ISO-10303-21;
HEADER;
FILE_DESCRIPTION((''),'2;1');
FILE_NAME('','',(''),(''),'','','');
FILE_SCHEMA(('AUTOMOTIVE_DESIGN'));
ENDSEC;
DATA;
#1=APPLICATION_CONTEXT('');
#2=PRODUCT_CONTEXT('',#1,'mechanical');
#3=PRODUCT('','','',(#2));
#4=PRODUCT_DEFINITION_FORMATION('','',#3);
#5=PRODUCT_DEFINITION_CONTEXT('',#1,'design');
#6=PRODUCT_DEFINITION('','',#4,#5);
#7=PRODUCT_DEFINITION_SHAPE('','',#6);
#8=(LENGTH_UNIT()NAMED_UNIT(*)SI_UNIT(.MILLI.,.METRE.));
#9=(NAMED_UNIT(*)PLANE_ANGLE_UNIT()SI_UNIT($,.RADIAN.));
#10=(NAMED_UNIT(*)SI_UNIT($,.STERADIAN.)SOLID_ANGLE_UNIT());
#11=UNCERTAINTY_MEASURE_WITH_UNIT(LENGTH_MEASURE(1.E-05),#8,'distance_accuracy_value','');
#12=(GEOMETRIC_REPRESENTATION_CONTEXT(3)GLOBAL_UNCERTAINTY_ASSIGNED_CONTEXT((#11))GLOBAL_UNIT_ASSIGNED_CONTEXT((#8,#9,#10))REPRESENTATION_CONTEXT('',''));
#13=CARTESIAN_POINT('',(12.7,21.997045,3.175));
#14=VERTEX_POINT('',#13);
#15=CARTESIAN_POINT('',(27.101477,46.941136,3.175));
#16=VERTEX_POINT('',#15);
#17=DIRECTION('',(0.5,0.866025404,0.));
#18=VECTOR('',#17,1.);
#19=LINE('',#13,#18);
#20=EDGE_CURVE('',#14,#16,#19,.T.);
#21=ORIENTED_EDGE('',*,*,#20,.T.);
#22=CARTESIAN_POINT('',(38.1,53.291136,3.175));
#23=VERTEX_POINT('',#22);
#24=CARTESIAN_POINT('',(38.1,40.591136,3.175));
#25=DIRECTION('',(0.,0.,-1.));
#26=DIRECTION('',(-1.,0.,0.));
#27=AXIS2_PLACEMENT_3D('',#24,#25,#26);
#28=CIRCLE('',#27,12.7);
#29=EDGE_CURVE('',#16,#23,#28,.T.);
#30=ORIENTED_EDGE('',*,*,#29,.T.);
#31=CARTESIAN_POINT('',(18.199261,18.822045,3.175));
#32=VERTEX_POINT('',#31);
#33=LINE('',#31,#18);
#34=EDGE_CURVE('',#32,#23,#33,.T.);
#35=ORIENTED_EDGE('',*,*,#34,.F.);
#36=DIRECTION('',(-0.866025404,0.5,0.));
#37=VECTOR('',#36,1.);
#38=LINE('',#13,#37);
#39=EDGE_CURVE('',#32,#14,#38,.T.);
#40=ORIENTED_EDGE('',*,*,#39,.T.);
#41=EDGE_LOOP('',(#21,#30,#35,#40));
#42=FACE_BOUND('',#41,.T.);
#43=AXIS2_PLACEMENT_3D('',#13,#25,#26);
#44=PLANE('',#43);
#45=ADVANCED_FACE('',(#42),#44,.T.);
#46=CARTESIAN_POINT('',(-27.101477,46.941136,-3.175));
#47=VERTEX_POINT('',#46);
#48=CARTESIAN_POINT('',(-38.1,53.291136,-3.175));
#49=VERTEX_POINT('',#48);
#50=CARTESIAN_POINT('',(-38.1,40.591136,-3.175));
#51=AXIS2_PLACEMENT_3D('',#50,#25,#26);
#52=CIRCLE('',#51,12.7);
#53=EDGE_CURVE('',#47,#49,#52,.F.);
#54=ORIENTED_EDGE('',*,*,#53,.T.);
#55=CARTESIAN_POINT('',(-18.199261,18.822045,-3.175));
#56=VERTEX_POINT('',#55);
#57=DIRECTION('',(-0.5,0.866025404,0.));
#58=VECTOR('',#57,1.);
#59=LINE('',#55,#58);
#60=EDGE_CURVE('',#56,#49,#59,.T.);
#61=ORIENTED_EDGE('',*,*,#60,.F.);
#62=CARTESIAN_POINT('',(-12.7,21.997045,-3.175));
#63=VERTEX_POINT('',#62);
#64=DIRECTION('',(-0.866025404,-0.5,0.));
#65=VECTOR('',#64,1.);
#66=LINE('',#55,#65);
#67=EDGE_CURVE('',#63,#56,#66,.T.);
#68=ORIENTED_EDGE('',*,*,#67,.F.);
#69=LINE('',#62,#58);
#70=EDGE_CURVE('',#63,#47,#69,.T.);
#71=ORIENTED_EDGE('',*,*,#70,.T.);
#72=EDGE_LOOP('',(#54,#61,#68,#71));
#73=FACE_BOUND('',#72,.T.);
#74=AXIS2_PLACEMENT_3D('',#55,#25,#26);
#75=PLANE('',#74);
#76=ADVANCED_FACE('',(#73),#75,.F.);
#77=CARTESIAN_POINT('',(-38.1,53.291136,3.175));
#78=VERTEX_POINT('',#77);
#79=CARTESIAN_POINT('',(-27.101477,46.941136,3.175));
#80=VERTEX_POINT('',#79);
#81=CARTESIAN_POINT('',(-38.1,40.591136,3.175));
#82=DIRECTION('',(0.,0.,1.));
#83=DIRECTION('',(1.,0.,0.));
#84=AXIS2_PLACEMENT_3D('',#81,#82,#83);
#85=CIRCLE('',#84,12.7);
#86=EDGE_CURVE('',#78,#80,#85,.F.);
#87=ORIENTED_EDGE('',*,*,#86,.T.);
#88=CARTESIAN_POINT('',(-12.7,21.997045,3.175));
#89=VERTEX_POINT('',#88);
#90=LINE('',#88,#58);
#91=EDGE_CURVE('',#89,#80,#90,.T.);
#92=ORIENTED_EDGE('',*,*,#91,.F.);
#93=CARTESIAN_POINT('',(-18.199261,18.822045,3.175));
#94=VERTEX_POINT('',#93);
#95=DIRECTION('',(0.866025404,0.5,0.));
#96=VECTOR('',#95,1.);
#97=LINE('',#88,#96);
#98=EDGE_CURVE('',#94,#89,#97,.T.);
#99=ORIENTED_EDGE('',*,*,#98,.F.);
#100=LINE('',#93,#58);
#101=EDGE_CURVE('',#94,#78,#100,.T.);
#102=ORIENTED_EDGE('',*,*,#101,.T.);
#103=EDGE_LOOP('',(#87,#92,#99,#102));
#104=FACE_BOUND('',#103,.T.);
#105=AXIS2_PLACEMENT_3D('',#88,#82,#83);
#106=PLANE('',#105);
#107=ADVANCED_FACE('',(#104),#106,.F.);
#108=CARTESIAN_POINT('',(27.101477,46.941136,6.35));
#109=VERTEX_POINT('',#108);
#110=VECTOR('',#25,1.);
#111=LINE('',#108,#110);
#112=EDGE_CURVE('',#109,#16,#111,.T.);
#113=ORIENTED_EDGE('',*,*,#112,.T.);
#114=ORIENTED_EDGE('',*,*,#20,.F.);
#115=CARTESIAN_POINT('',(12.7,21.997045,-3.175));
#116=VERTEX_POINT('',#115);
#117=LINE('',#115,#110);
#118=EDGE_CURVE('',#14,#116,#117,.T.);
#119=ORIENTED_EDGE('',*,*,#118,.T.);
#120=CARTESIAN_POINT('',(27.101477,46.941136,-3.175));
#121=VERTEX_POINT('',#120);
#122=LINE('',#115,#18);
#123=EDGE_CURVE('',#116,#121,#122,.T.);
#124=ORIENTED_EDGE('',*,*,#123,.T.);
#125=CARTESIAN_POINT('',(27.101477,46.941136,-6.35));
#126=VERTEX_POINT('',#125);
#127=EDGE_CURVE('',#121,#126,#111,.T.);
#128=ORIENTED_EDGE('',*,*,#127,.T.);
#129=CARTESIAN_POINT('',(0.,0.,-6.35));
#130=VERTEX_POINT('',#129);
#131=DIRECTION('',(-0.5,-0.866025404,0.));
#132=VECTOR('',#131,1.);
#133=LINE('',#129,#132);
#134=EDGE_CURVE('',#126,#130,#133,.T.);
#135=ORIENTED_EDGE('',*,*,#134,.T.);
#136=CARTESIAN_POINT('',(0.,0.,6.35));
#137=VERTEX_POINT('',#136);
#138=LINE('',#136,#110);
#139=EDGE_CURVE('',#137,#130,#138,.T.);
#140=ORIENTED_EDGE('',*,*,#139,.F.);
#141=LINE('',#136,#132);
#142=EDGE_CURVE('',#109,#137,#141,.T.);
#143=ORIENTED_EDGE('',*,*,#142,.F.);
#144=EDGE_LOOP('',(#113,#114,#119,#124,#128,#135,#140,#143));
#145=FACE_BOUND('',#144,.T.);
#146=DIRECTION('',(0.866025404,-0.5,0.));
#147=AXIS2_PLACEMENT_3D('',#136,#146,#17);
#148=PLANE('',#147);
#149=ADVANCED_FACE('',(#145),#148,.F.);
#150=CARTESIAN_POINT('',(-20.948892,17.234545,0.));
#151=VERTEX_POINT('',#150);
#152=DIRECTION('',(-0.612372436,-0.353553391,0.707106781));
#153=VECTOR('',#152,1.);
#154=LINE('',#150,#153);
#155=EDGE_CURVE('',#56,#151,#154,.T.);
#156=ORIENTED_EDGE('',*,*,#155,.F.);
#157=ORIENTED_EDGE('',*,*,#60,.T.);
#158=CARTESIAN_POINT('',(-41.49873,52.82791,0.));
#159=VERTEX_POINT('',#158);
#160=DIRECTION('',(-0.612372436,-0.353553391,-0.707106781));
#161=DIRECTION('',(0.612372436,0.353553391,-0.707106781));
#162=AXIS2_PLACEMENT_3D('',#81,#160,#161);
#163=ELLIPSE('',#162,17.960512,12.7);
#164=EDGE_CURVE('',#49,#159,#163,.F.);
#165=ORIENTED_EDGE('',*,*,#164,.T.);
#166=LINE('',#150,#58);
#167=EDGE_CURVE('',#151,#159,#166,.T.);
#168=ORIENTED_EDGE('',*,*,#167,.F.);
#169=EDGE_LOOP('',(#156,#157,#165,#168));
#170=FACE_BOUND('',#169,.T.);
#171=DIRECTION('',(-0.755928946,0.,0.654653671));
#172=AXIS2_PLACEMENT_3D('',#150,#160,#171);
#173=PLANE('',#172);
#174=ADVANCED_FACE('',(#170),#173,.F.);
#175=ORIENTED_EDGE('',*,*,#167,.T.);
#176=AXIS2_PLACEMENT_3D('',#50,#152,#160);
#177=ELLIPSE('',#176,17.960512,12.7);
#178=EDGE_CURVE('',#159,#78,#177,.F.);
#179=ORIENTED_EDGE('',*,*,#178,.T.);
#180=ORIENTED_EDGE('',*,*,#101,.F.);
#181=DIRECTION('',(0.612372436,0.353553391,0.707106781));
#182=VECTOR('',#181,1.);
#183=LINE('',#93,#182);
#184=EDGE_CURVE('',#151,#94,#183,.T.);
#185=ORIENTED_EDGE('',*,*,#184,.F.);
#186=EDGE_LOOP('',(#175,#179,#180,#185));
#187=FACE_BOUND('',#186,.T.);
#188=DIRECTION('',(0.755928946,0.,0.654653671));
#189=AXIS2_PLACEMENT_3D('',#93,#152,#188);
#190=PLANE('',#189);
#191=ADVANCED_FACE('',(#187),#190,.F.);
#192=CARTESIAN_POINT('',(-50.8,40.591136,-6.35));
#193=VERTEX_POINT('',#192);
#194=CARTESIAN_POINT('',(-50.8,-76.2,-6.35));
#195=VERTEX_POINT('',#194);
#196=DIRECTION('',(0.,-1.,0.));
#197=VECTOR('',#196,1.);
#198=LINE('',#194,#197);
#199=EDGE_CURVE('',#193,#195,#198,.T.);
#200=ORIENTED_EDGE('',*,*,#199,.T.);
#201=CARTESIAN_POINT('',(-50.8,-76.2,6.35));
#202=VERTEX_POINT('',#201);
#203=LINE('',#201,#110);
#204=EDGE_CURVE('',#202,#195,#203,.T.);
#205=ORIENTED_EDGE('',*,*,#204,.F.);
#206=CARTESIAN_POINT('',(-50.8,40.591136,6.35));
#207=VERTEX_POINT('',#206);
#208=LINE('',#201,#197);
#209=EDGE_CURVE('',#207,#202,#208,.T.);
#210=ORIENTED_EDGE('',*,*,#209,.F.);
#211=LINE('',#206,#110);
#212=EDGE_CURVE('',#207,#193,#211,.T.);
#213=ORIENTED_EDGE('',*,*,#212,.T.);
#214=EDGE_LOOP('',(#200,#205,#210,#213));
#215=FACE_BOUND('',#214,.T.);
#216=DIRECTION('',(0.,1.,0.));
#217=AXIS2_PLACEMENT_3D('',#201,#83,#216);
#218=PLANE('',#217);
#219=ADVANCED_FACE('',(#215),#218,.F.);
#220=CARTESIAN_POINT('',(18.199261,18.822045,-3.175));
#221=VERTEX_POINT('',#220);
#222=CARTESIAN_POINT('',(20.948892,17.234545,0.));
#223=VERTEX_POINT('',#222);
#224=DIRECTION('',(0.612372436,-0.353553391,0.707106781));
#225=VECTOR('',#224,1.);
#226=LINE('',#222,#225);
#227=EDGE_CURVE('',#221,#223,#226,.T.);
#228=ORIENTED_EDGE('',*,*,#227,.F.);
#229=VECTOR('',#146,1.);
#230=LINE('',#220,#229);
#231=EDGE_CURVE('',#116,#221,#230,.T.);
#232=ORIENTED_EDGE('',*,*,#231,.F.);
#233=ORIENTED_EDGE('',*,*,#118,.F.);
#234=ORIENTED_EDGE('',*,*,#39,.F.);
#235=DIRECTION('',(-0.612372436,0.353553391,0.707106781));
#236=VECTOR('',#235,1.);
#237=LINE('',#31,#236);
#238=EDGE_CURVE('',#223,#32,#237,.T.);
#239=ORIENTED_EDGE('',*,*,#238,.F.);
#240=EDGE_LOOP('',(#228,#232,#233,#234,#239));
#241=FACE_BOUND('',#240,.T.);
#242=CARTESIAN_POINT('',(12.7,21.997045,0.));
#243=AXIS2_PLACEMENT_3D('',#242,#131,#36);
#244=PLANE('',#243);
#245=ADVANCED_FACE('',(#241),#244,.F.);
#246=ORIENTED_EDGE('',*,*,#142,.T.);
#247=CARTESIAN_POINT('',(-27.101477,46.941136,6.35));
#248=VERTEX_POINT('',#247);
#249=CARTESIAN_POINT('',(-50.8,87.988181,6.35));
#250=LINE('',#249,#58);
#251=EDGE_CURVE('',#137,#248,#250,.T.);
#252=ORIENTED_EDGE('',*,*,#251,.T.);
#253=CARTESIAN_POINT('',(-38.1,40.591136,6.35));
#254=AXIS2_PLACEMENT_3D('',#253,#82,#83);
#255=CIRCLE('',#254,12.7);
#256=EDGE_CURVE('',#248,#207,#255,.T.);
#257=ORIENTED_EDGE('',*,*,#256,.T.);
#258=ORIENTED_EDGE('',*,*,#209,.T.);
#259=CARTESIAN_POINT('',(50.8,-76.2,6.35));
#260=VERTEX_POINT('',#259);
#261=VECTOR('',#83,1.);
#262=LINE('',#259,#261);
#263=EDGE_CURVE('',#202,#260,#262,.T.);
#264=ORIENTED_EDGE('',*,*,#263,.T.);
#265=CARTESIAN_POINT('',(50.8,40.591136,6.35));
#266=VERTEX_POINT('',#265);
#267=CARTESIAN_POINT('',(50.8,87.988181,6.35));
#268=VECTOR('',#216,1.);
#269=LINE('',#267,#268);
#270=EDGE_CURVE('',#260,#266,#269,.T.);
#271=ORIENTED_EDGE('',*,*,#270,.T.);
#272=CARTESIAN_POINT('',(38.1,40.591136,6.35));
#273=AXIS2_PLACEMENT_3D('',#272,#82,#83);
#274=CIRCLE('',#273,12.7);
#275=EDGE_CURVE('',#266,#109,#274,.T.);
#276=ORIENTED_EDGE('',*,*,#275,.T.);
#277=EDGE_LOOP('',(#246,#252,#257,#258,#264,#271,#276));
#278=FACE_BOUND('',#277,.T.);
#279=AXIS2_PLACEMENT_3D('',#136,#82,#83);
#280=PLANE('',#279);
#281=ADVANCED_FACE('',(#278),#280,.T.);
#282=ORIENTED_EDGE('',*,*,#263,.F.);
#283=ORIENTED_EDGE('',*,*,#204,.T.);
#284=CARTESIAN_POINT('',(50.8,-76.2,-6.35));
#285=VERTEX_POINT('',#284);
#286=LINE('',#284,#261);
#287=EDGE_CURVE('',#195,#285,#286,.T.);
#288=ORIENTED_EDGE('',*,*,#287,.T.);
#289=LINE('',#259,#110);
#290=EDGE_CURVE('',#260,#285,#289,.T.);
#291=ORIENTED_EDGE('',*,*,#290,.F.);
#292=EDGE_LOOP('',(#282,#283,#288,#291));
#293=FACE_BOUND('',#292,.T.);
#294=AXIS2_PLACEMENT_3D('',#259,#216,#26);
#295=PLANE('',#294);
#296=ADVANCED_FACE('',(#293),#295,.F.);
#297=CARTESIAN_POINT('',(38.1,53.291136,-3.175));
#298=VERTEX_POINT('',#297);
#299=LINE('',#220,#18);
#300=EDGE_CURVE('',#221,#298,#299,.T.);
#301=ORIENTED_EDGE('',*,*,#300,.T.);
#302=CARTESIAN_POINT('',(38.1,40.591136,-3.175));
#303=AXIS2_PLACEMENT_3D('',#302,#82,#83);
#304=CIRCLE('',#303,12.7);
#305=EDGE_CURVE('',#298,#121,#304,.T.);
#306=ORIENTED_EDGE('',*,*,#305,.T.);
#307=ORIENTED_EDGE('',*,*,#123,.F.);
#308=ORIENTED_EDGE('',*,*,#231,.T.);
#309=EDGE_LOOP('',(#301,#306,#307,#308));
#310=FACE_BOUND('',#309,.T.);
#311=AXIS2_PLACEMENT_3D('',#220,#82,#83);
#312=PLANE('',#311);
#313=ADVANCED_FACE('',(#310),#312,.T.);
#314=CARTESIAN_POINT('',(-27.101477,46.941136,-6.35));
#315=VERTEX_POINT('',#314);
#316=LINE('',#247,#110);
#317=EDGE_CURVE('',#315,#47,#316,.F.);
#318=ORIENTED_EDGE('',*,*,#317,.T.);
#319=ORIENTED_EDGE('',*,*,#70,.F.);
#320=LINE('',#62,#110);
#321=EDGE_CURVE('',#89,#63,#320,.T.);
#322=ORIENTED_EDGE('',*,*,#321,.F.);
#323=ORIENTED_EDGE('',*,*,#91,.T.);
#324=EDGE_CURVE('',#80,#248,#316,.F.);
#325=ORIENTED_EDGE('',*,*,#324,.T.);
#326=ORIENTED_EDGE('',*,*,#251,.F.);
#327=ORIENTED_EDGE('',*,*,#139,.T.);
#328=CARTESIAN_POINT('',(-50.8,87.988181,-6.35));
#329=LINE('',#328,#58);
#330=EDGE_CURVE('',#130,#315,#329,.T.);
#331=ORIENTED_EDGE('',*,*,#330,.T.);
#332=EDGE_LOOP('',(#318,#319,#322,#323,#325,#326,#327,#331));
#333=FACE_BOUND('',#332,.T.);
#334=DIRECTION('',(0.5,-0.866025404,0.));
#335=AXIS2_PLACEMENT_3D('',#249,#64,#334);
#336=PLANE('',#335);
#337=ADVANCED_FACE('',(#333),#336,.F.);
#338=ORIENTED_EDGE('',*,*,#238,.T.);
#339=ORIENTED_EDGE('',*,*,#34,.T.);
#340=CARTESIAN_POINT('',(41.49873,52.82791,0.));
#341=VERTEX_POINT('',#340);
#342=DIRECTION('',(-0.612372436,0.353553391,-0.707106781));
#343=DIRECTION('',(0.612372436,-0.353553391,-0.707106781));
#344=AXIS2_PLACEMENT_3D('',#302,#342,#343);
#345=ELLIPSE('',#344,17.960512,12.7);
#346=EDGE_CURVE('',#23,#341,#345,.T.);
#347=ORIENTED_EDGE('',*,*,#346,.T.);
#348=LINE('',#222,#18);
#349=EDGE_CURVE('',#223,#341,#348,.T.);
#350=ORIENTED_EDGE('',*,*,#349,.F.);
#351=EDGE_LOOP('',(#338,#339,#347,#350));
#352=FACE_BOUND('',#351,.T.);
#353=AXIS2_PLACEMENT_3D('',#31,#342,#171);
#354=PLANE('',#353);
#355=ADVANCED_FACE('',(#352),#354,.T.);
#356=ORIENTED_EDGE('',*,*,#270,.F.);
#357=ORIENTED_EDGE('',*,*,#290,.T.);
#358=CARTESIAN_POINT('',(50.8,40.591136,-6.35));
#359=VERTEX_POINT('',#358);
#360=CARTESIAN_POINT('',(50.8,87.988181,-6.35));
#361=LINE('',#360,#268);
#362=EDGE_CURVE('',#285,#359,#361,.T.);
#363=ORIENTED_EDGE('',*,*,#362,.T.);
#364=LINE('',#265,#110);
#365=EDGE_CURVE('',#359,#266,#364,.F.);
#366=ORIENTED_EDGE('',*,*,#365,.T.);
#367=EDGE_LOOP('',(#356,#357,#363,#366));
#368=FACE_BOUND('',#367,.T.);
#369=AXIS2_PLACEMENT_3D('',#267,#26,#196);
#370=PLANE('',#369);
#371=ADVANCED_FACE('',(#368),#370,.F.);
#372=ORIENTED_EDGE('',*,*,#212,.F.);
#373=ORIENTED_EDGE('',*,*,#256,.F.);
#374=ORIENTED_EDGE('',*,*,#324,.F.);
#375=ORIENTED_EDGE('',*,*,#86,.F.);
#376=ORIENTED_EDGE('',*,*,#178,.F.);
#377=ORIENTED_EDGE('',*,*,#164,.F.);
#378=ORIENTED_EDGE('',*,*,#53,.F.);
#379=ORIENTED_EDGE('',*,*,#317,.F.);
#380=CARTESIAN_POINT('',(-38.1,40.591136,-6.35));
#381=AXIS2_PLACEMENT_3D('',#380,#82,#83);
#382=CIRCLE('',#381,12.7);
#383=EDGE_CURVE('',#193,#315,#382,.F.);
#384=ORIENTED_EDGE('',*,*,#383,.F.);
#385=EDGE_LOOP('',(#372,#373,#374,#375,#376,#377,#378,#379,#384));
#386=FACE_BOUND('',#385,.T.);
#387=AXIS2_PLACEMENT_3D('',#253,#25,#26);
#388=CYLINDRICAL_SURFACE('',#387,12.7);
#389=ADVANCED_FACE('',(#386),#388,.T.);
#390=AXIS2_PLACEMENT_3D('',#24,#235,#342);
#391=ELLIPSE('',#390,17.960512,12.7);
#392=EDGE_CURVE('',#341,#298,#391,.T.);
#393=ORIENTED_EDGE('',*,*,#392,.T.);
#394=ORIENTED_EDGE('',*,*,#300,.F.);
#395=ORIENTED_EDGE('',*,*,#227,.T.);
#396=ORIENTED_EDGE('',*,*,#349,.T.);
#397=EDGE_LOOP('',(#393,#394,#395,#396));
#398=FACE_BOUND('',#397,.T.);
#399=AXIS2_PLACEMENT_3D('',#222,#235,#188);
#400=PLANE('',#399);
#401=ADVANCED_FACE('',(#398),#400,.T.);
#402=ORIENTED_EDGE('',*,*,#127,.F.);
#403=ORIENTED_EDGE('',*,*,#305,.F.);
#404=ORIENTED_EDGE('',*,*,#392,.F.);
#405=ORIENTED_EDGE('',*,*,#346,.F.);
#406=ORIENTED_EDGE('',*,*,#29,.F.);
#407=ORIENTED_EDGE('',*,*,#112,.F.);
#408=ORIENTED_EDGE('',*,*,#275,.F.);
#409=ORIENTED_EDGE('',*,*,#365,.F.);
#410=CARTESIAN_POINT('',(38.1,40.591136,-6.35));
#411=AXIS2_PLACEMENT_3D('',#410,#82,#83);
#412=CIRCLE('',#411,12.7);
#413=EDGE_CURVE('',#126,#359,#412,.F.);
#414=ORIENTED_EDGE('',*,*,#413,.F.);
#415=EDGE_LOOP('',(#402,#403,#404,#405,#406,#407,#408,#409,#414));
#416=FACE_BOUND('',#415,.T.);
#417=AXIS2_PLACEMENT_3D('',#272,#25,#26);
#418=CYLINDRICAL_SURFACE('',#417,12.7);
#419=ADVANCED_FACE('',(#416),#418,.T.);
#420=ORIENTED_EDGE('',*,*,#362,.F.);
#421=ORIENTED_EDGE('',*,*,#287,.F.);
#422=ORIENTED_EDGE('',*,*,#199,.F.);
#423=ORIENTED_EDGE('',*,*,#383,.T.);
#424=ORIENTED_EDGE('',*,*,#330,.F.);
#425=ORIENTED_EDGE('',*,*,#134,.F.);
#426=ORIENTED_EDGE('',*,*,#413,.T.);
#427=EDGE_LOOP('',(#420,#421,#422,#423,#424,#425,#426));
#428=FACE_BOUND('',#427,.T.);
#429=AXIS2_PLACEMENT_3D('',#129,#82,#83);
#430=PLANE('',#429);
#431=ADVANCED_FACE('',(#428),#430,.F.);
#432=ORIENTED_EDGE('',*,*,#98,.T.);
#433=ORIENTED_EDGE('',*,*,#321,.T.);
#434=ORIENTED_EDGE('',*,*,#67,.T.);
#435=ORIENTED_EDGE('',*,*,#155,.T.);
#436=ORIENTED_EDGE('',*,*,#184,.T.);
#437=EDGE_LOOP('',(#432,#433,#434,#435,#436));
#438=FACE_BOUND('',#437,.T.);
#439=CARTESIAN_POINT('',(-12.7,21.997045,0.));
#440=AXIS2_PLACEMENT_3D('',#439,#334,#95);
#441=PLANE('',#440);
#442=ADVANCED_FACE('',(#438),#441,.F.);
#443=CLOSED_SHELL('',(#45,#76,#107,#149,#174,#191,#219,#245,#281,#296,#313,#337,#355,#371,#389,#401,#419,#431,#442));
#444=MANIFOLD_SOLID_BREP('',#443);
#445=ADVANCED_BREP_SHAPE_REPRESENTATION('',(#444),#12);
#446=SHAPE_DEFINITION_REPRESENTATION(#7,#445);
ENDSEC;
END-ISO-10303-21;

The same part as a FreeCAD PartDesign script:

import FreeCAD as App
import Part
import Sketcher

V = App.Vector
Q = App.Units.Quantity


def edges_at(feature, points):
    """Names of the edges that pass closest to the given points."""
    edges = feature.Shape.Edges
    near = lambda p: min(range(len(edges)), key=lambda i: edges[i].distToShape(Part.Vertex(*p))[0])
    return sorted({f"Edge{near(p) + 1}" for p in points})


def add_polygon(sketch, points):
    """Adds a closed chain of lines whose ends are joined by coincident constraints."""
    first, n = sketch.GeometryCount, len(points)
    for a, b in zip(points, points[1:] + points[:1]):
        sketch.addGeometry(Part.LineSegment(App.Vector(*a, 0), App.Vector(*b, 0)), False)
    for i in range(n):
        sketch.addConstraint(Sketcher.Constraint("Coincident", first + i, 2, first + (i + 1) % n, 1))

doc = App.newDocument("Part")
params = doc.addObject("Spreadsheet::Sheet", "Params")
for row, (alias, value) in enumerate([
    ("sketch1_width", "4 in"),
    ("sketch1_length", "4 in"),
    ("pad1_length", "0.5 in"),
    ("sketch2_width", "0.25 in"),
    ("pocket1_length", "3 in"),
    ("fillet_radius", "0.5 in"),
], start=1):
    params.set(f"A{row}", alias)
    params.set(f"B{row}", "=" + value)
    params.setAlias(f"B{row}", alias)

body = doc.addObject("PartDesign::Body", "Body")

sketch1 = body.newObject("Sketcher::SketchObject", "Sketch")
sketch1.AttachmentSupport = (doc.getObject("XY_Plane"), [""])
sketch1.MapMode = "FlatFace"
add_polygon(sketch1, [(0, 0), (-50.8, 87.988181), (-50.8, -76.2), (50.8, -76.2), (50.8, 87.988181)])
sketch1.addConstraint([
    Sketcher.Constraint("Vertical", 1),
    Sketcher.Constraint("Horizontal", 2),
    Sketcher.Constraint("Vertical", 3),
    Sketcher.Constraint("Coincident", 4, 2, -1, 1),
    Sketcher.Constraint("Symmetric", 0, 2, 3, 2, -2),
    Sketcher.Constraint("DistanceX", 2, 1, 2, 2, Q("4 in")),
    Sketcher.Constraint("Distance", 0, Q("4 in")),
    Sketcher.Constraint("DistanceY", 1, 2, -1, 1, Q("3 in")),
])
sketch1.setExpression("Constraints[10]", "Params.sketch1_width")
sketch1.setExpression("Constraints[11]", "Params.sketch1_length")
pad1 = body.newObject("PartDesign::Pad", "Pad")
pad1.Profile = sketch1
pad1.setExpression("Length", "Params.pad1_length")
pad1.Midplane = True

sketch2 = body.newObject("Sketcher::SketchObject", "Sketch001")
sketch2.Placement = App.Placement(V(-50.8, 87.988181, 0), App.Rotation(V(0, 0, -1), V(-0.866025404, -0.5, 0), V(-0.5, 0.866025404, 0), "ZXY"))
add_polygon(sketch2, [(-3.175, 0), (3.175, 0), (3.175, 6.35), (0, 9.525), (-3.175, 6.35)])
sketch2.addConstraint([
    Sketcher.Constraint("Horizontal", 0),
    Sketcher.Constraint("Vertical", 1),
    Sketcher.Constraint("Vertical", 4),
    Sketcher.Constraint("Symmetric", 0, 2, 4, 2, -1, 1),
    Sketcher.Constraint("PointOnObject", 2, 2, -2),
    Sketcher.Constraint("Perpendicular", 2, 3),
    Sketcher.Constraint("Horizontal", 1, 2, 3, 2),
    Sketcher.Constraint("Equal", 0, 1),
    Sketcher.Constraint("DistanceX", 0, 1, 0, 2, Q("0.25 in")),
])
sketch2.setExpression("Constraints[13]", "Params.sketch2_width")
pocket1 = body.newObject("PartDesign::Pocket", "Pocket")
pocket1.Profile = sketch2
pocket1.setExpression("Length", "Params.pocket1_length")
doc.recompute()

mirrored = body.newObject("PartDesign::Mirrored", "Mirrored")
mirrored.Originals = [pocket1]
mirrored.MirrorPlane = (doc.getObject("YZ_Plane"), [""])
body.Tip = mirrored
doc.recompute()

fillet = body.newObject("PartDesign::Fillet", "Fillet")
fillet.Base = (mirrored, edges_at(mirrored, [(50.8, 87.988, 4.763), (-50.8, 87.988, -4.763)]))
fillet.setExpression("Radius", "Params.fillet_radius")

doc.recompute()
